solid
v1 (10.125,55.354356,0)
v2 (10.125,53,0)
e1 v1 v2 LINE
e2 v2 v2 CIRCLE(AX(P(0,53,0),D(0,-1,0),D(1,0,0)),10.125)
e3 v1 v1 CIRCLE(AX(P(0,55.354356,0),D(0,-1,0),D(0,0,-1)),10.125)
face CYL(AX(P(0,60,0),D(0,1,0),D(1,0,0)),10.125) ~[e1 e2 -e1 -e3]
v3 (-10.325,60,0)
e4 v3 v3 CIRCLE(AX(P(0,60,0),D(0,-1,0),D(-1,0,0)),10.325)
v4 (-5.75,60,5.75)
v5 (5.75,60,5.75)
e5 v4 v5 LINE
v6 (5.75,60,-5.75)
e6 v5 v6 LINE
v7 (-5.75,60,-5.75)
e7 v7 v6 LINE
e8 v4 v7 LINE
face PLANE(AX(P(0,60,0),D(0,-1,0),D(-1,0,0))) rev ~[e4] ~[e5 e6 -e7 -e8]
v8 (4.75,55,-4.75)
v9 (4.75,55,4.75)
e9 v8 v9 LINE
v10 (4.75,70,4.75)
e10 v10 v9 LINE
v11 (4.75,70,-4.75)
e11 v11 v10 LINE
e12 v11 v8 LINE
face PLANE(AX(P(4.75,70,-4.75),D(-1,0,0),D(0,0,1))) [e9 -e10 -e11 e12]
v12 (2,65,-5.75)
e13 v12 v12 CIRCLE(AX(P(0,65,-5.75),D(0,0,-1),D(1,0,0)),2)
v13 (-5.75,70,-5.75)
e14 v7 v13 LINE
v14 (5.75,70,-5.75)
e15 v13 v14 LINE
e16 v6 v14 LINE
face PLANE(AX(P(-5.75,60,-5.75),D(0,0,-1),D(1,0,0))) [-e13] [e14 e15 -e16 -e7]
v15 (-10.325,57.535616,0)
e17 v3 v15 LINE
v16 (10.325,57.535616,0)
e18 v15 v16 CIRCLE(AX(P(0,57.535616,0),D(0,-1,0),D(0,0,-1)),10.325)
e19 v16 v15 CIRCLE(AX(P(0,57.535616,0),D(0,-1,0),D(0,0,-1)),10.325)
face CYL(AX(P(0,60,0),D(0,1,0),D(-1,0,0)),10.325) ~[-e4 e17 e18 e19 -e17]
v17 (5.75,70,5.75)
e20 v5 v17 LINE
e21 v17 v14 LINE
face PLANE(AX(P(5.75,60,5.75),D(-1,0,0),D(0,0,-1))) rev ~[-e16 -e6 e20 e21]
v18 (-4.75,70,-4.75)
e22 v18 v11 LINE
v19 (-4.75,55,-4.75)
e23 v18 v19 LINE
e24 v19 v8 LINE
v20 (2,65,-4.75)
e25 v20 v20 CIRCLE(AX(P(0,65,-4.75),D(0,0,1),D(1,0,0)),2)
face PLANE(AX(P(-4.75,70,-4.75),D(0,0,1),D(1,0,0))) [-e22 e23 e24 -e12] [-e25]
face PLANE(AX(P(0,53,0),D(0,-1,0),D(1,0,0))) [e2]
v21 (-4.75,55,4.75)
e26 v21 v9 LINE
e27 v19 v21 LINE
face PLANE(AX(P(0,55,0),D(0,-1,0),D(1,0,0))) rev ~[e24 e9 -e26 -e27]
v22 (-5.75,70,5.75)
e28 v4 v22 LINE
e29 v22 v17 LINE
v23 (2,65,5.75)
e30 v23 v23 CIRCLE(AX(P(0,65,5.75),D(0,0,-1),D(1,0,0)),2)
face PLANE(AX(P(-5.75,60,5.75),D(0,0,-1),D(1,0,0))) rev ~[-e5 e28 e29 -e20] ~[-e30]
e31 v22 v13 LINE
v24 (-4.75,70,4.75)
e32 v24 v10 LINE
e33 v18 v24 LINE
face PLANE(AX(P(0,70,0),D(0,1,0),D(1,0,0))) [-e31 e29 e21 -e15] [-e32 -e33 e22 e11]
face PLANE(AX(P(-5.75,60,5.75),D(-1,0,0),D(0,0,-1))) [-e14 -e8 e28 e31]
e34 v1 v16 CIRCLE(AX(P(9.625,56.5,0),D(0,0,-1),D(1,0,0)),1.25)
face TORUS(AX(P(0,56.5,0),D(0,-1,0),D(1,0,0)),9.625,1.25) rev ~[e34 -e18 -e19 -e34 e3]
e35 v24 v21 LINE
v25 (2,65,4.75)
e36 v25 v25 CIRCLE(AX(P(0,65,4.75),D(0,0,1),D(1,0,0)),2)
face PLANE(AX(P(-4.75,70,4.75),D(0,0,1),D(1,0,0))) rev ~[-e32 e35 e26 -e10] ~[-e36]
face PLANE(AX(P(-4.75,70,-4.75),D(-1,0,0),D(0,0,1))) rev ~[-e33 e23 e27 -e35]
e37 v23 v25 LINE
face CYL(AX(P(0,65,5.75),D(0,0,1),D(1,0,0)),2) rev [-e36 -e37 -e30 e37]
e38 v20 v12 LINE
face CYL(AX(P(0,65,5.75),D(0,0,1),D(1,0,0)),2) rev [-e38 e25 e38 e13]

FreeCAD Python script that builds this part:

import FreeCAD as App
import Part
import Sketcher
Q = App.Units.Quantity


def add_polygon(sketch, points):
    """Adds a closed chain of lines whose ends are joined by coincident constraints."""
    first, n = sketch.GeometryCount, len(points)
    for a, b in zip(points, points[1:] + points[:1]):
        sketch.addGeometry(Part.LineSegment(App.Vector(*a, 0), App.Vector(*b, 0)), False)
    for i in range(n):
        sketch.addConstraint(Sketcher.Constraint("Coincident", first + i, 2, first + (i + 1) % n, 1))

doc = App.newDocument("Part")
body = doc.addObject("PartDesign::Body", "Body")

# Sketch on XZ plane
sketch1 = body.newObject("Sketcher::SketchObject", "Sketch")
sketch1.AttachmentSupport = (doc.getObject("XZ_Plane"), [""])
sketch1.MapMode = "FlatFace"
sketch1.addGeometry(Part.Circle(App.Vector(0, 0, 0), App.Vector(0, 0, 1), 10), False)
sketch1.addConstraint(Sketcher.Constraint("Coincident", 0, 3, -1, 1))
sketch1.addConstraint(Sketcher.Constraint("Diameter", 0, Q("20.25 mm")))
pad1 = body.newObject("PartDesign::Pad", "Pad")
pad1.Profile = sketch1
pad1.Length = 7

# Sketch on XZ plane
sketch2 = body.newObject("Sketcher::SketchObject", "Sketch001")
sketch2.AttachmentSupport = (doc.getObject("XZ_Plane"), [""])
sketch2.MapMode = "FlatFace"
add_polygon(sketch2, [(-6, -6), (-6, 6), (6, 6), (6, -6)])  # lines 0-3
sketch2.addConstraint(Sketcher.Constraint("Vertical", 0))
sketch2.addConstraint(Sketcher.Constraint("Horizontal", 1))
sketch2.addConstraint(Sketcher.Constraint("Vertical", 2))
sketch2.addConstraint(Sketcher.Constraint("Horizontal", 3))
sketch2.addConstraint(Sketcher.Constraint("Symmetric", 0, 2, 2, 2, -1, 1))
sketch2.addConstraint(Sketcher.Constraint("Equal", 3, 0))
sketch2.addConstraint(Sketcher.Constraint("DistanceX", 1, 1, 1, 2, Q("11.5 mm")))
pad2 = body.newObject("PartDesign::Pad", "Pad001")
pad2.Profile = sketch2
pad2.Length = 10
pad2.Reversed = True

# Sketch on XZ plane
sketch3 = body.newObject("Sketcher::SketchObject", "Sketch002")
sketch3.AttachmentSupport = (doc.getObject("XZ_Plane"), [""])
sketch3.MapMode = "FlatFace"
sketch3.addGeometry(Part.Circle(App.Vector(0, 0, 0), App.Vector(0, 0, 1), 10), False)
sketch3.addConstraint(Sketcher.Constraint("Coincident", 0, 3, -1, 1))
sketch3.addConstraint(Sketcher.Constraint("Diameter", 0, Q("20.65 mm")))
pad3 = body.newObject("PartDesign::Pad", "Pad002")
pad3.Profile = sketch3
pad3.Length = 2.5

# Sketch on XZ plane
sketch4 = body.newObject("Sketcher::SketchObject", "Sketch003")
sketch4.AttachmentSupport = (doc.getObject("XZ_Plane"), [""])
sketch4.MapMode = "FlatFace"
sketch4.AttachmentOffset = App.Placement(App.Vector(0, 0, -10), App.Rotation())
add_polygon(sketch4, [(-5, 5), (-5, -5), (5, -5), (5, 5)])  # lines 0-3
sketch4.addConstraint(Sketcher.Constraint("Vertical", 0))
sketch4.addConstraint(Sketcher.Constraint("Horizontal", 1))
sketch4.addConstraint(Sketcher.Constraint("Vertical", 2))
sketch4.addConstraint(Sketcher.Constraint("Horizontal", 3))
sketch4.addConstraint(Sketcher.Constraint("Symmetric", 0, 2, 2, 2, -1, 1))
sketch4.addConstraint(Sketcher.Constraint("Equal", 3, 0))
sketch4.addConstraint(Sketcher.Constraint("DistanceX", 1, 1, 1, 2, Q("9.5 mm")))
pocket1 = body.newObject("PartDesign::Pocket", "Pocket")
pocket1.Profile = sketch4
pocket1.Length = 15
pocket1.Reversed = True

# Sketch on XY plane
sketch5 = body.newObject("Sketcher::SketchObject", "Sketch004")
sketch5.AttachmentSupport = (doc.getObject("XY_Plane"), [""])
sketch5.MapMode = "FlatFace"
sketch5.AttachmentOffset = App.Placement(App.Vector(0, 0, 5.75), App.Rotation())
sketch5.addGeometry(Part.Circle(App.Vector(0, 5, 0), App.Vector(0, 0, 1), 2), False)
sketch5.addConstraint(Sketcher.Constraint("PointOnObject", 0, 3, -2))
sketch5.addConstraint(Sketcher.Constraint("Diameter", 0, Q("4 mm")))
sketch5.addConstraint(Sketcher.Constraint("DistanceY", -1, 1, 0, 3, Q("5 mm")))
pocket2 = body.newObject("PartDesign::Pocket", "Pocket001")
pocket2.Profile = sketch5
pocket2.Length = 11.5

# Sketch on XY plane
sketch6 = body.newObject("Sketcher::SketchObject", "Sketch005")
sketch6.AttachmentSupport = (doc.getObject("XY_Plane"), [""])
sketch6.MapMode = "FlatFace"
sketch6.addGeometry(Part.Circle(App.Vector(9.6, -3.5, 0), App.Vector(0, 0, 1), 1.2), False)
sketch6.addConstraint(Sketcher.Constraint("Diameter", 0, Q("2.5 mm")))
sketch6.addConstraint(Sketcher.Constraint("DistanceY", 0, 3, -1, 1, Q("3.5 mm")))
sketch6.addConstraint(Sketcher.Constraint("DistanceX", -1, 1, 0, 3, Q("9.625 mm")))
groove = body.newObject("PartDesign::Groove", "Groove")
groove.Profile = sketch6
groove.ReferenceAxis = (sketch6, ["V_Axis"])
groove.Angle = 360
body2 = doc.addObject("PartDesign::Body", "Body001")
doc.recompute()

body.Placement = App.Placement(App.Vector(0, 60, 0), App.Rotation(App.Vector(0, 0, 1), 0))
boolean = body2.newObject("PartDesign::Boolean", "Boolean")
boolean.Type = "Fuse"
boolean.addObjects([body])

doc.recompute()
